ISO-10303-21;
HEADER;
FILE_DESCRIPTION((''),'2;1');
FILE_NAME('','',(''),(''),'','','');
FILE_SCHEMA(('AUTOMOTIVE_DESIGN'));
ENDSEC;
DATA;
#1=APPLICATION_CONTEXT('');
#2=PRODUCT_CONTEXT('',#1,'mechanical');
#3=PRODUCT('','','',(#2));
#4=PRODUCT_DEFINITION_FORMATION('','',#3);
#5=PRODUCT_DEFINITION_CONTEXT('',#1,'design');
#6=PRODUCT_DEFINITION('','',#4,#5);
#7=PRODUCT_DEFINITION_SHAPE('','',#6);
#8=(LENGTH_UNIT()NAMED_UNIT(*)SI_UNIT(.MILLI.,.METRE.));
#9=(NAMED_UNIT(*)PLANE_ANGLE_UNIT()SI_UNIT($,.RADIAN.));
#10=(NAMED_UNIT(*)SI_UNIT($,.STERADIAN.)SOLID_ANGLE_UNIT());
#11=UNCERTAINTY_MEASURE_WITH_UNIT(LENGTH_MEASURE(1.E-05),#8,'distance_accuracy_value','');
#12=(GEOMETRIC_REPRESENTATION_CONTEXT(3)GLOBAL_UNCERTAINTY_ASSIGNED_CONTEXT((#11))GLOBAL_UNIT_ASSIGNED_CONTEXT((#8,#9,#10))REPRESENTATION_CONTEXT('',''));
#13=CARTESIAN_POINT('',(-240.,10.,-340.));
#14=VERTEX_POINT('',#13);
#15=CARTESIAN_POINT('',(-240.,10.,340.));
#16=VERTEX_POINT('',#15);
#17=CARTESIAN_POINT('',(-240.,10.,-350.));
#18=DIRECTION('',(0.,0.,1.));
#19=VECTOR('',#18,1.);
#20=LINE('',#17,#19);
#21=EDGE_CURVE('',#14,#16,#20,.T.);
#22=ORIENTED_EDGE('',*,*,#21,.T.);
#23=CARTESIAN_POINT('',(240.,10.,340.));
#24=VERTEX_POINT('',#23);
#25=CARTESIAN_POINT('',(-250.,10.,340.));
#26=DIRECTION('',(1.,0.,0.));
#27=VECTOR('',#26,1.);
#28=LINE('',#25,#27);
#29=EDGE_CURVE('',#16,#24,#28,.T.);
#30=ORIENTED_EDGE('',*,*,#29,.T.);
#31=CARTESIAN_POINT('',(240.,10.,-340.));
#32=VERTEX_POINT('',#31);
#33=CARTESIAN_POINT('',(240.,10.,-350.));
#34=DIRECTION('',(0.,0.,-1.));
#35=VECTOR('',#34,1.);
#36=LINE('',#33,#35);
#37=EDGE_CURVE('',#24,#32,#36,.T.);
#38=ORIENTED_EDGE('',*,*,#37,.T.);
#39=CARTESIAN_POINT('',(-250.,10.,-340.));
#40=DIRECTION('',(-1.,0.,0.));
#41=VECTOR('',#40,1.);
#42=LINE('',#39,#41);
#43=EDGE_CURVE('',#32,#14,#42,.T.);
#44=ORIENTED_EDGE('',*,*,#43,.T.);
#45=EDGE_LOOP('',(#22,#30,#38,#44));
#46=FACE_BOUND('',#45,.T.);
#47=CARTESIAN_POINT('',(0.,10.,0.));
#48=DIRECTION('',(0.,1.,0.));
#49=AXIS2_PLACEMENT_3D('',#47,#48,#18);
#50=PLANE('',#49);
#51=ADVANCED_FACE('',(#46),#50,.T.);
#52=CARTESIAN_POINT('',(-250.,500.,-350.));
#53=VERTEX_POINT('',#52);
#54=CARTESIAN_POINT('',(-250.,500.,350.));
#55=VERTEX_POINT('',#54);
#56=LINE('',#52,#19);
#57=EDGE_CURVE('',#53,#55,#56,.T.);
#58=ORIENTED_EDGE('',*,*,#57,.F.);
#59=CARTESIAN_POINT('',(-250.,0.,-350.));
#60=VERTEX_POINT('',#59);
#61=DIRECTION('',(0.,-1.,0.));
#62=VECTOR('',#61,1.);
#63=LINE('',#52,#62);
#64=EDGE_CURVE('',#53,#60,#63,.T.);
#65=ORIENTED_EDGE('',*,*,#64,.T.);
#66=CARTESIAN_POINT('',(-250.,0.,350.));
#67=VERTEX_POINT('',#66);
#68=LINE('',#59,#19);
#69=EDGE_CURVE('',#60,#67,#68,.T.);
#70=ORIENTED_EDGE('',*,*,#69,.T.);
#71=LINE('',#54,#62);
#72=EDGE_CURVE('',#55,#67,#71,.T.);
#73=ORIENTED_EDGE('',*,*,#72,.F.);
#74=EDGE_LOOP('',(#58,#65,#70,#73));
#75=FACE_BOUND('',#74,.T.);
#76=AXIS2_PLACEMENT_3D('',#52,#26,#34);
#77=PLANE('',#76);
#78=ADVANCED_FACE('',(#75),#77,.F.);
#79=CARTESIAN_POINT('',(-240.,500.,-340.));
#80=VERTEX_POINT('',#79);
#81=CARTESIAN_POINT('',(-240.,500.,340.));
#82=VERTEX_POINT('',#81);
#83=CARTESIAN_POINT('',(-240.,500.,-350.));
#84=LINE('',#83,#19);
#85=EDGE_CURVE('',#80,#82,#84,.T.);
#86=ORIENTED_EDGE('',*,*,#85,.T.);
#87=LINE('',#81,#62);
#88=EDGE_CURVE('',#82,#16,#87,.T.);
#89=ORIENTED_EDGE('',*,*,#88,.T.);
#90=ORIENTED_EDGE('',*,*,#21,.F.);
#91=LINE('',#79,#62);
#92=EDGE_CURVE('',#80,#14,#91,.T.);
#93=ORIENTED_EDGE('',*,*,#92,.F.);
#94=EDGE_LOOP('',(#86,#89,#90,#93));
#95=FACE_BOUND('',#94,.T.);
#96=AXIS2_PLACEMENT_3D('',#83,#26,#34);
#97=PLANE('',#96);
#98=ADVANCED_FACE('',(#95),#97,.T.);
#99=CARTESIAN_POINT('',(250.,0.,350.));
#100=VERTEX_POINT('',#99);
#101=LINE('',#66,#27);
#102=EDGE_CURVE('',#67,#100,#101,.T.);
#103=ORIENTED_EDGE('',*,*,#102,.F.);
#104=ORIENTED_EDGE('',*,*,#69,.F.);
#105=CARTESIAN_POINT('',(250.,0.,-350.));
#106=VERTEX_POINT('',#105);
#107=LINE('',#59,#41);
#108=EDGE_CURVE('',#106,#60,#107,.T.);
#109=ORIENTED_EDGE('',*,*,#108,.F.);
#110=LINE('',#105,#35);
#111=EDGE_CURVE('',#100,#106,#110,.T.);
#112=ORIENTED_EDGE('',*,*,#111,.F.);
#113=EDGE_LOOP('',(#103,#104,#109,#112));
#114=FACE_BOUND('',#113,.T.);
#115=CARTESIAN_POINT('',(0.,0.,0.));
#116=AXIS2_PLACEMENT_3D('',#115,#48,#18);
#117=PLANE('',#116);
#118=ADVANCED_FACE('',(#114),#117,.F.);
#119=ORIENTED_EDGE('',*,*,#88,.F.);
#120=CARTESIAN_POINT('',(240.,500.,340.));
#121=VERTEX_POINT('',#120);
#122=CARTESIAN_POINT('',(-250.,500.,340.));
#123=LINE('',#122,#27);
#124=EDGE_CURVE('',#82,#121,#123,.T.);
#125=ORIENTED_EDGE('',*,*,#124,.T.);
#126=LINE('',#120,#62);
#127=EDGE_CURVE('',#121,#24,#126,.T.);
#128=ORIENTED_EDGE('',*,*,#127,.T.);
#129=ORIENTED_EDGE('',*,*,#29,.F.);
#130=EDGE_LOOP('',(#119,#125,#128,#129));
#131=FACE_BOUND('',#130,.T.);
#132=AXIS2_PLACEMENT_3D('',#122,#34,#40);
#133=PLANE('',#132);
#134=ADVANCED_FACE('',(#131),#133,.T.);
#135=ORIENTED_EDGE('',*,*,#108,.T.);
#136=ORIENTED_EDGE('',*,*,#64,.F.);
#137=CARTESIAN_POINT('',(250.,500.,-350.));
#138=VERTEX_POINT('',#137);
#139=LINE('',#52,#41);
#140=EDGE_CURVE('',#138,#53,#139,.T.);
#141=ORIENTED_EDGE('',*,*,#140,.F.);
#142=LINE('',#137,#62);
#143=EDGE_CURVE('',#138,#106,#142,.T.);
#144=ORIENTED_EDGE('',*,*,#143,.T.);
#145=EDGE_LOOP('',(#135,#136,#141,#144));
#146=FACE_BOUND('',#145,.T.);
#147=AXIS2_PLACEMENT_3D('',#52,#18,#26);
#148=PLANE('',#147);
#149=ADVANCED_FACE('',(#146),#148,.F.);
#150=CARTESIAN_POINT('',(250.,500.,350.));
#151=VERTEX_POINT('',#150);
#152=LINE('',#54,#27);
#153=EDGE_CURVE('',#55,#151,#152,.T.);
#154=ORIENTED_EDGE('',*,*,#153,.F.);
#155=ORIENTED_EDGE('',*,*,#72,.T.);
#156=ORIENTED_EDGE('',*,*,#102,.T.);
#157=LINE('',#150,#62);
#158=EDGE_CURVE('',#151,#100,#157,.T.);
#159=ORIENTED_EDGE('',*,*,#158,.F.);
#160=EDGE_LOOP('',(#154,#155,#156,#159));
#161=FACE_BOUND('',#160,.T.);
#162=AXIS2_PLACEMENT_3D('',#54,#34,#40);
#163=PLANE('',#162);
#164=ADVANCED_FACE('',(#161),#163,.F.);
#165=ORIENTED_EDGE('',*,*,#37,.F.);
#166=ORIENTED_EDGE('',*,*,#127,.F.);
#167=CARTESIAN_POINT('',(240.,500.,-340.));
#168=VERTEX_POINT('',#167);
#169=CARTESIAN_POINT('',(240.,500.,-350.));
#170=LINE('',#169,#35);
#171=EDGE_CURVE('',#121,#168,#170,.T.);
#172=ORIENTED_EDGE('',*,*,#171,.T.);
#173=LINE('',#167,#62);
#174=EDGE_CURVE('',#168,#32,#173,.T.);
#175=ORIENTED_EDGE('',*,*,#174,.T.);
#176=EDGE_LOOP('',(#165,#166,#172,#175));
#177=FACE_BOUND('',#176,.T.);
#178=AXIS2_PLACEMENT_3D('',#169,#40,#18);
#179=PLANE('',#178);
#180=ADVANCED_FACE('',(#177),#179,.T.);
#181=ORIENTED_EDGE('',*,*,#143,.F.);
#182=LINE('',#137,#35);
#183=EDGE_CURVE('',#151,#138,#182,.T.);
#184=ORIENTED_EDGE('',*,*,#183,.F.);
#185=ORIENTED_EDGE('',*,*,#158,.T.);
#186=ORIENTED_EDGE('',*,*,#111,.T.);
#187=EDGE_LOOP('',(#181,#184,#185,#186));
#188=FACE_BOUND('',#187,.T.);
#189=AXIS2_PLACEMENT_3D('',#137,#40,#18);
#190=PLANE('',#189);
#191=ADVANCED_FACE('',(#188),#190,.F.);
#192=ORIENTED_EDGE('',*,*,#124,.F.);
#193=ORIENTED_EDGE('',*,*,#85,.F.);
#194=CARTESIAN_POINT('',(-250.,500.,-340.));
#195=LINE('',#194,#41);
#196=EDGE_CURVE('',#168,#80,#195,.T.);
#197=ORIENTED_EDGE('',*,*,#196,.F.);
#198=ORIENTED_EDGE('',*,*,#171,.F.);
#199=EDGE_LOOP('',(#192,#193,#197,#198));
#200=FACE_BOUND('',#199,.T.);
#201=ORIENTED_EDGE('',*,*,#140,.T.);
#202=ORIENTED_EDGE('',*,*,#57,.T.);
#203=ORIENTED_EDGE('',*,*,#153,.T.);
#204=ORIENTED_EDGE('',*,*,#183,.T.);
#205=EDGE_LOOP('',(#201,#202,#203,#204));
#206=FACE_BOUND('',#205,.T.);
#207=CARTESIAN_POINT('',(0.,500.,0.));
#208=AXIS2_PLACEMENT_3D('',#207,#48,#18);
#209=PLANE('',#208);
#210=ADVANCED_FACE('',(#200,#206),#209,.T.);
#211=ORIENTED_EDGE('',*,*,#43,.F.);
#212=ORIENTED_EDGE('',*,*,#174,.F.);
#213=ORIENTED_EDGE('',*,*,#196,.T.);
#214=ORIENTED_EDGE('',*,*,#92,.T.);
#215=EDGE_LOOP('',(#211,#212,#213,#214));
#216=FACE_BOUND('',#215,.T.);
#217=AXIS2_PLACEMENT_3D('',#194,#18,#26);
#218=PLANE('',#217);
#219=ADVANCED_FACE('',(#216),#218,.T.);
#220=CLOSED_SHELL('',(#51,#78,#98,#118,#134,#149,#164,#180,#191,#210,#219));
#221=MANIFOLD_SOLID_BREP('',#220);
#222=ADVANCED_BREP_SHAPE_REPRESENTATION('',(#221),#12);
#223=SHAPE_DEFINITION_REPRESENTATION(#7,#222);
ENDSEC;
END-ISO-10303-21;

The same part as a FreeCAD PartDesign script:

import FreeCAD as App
import Part
import Sketcher

V = App.Vector
Q = App.Units.Quantity


def faces_at(feature, points):
    """Names of the faces that lie closest to the given points."""
    faces = feature.Shape.Faces
    near = lambda p: min(range(len(faces)), key=lambda i: faces[i].distToShape(Part.Vertex(*p))[0])
    return sorted({f"Face{near(p) + 1}" for p in points})

doc = App.newDocument("Part")
body = doc.addObject("PartDesign::Body", "Body")

sketch1 = body.newObject("Sketcher::SketchObject", "Sketch")
sketch1.AttachmentSupport = (doc.getObject("XZ_Plane"), [""])
sketch1.MapMode = "FlatFace"
sketch1.addGeometry([
    Part.LineSegment(V(-250, -350, 0), V(-250, 350, 0)),
    Part.LineSegment(V(-250, 350, 0), V(250, 350, 0)),
    Part.LineSegment(V(250, 350, 0), V(250, -350, 0)),
    Part.LineSegment(V(250, -350, 0), V(-250, -350, 0)),
], False)
sketch1.addConstraint([
    Sketcher.Constraint("Coincident", 0, 2, 1, 1),
    Sketcher.Constraint("Coincident", 1, 2, 2, 1),
    Sketcher.Constraint("Coincident", 2, 2, 3, 1),
    Sketcher.Constraint("Coincident", 3, 2, 0, 1),
    Sketcher.Constraint("Vertical", 0),
    Sketcher.Constraint("Horizontal", 1),
    Sketcher.Constraint("Vertical", 2),
    Sketcher.Constraint("Horizontal", 3),
    Sketcher.Constraint("Symmetric", 0, 2, 2, 2, -1, 1),
    Sketcher.Constraint("DistanceX", 1, 1, 1, 2, Q("500 mm")),
    Sketcher.Constraint("DistanceY", 0, 1, 0, 2, Q("700 mm")),
])
pad1 = body.newObject("PartDesign::Pad", "Pad")
pad1.Profile = sketch1
pad1.Length = 500
pad1.Reversed = True
doc.recompute()

thickness = body.newObject("PartDesign::Thickness", "Thickness")
thickness.Base = (pad1, faces_at(pad1, [(0, 500, 0)]))
thickness.Value = 10
thickness.Reversed = True
thickness.Join = "Intersection"

doc.recompute()
